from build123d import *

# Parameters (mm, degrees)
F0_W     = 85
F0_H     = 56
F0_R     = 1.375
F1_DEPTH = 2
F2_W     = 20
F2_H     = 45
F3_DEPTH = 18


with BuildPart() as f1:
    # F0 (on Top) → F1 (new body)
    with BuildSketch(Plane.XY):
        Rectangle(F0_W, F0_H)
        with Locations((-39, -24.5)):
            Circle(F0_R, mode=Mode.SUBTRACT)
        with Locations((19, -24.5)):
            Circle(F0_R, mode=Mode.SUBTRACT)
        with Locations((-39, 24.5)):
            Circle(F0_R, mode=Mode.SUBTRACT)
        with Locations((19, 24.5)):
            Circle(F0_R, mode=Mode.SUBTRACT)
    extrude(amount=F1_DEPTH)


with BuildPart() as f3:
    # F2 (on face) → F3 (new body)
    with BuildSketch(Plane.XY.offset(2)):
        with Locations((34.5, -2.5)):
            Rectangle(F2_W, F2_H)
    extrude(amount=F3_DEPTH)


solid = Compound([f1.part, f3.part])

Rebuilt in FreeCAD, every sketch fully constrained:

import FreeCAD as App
import Part
import Sketcher


def add_polygon(sketch, points):
    """Adds a closed chain of lines whose ends are joined by coincident constraints."""
    first, n = sketch.GeometryCount, len(points)
    for a, b in zip(points, points[1:] + points[:1]):
        sketch.addGeometry(Part.LineSegment(App.Vector(*a, 0), App.Vector(*b, 0)), False)
    for i in range(n):
        sketch.addConstraint(Sketcher.Constraint("Coincident", first + i, 2, first + (i + 1) % n, 1))

doc = App.newDocument("Part")
body = doc.addObject("PartDesign::Body", "Body")

# Sketch on XY plane
sketch1 = body.newObject("Sketcher::SketchObject", "Sketch")
sketch1.AttachmentSupport = (doc.getObject("XY_Plane"), [""])
sketch1.MapMode = "FlatFace"
add_polygon(sketch1, [(-42.5, 28), (-42.5, -28), (42.5, -28), (42.5, 28)])  # lines 0-3
sketch1.addGeometry(Part.Circle(App.Vector(-39, -24.5, 0), App.Vector(0, 0, 1), 1.4), False)  # 4
sketch1.addGeometry(Part.Circle(App.Vector(19, -24.5, 0), App.Vector(0, 0, 1), 1.4), False)  # 5
sketch1.addGeometry(Part.Circle(App.Vector(-39, 24.5, 0), App.Vector(0, 0, 1), 1.4), False)  # 6
sketch1.addGeometry(Part.Circle(App.Vector(19, 24.5, 0), App.Vector(0, 0, 1), 1.4), False)  # 7
sketch1.addConstraint([
    Sketcher.Constraint("Vertical", 0),
    Sketcher.Constraint("Horizontal", 1),
    Sketcher.Constraint("Vertical", 2),
    Sketcher.Constraint("Horizontal", 3),
    Sketcher.Constraint("Equal", 4, 5),
    Sketcher.Constraint("Equal", 5, 6),
    Sketcher.Constraint("Equal", 6, 7),
    Sketcher.Constraint("Symmetric", 0, 2, 2, 2, -1, 1),
    Sketcher.Constraint("Symmetric", 4, 3, 6, 3, -1),
    Sketcher.Constraint("Symmetric", 5, 3, 7, 3, -1),
    Sketcher.Constraint("Horizontal", 4, 3, 5, 3),
    Sketcher.Constraint("Diameter", 4, 2.75),
    Sketcher.Constraint("DistanceX", 1, 1, 1, 2, 85.0),
    Sketcher.Constraint("DistanceY", 0, 2, 0, 1, 56.0),
    Sketcher.Constraint("DistanceX", 4, 3, -1, 1, 39.0),
    Sketcher.Constraint("DistanceX", -1, 1, 5, 3, 19.0),
    Sketcher.Constraint("DistanceY", 4, 3, 6, 3, 49.0),
])
pad1 = body.newObject("PartDesign::Pad", "Pad")
pad1.Profile = sketch1
pad1.Length = 2
body2 = doc.addObject("PartDesign::Body", "Body001")

# Sketch on XY plane
sketch2 = body2.newObject("Sketcher::SketchObject", "Sketch001")
sketch2.AttachmentSupport = (doc.getObject("XY_Plane001"), [""])
sketch2.MapMode = "FlatFace"
sketch2.AttachmentOffset = App.Placement(App.Vector(0, 0, 2), App.Rotation())
add_polygon(sketch2, [(24, 20), (24, -25), (44, -25), (44, 20)])  # lines 0-3
sketch2.addConstraint([
    Sketcher.Constraint("Vertical", 0),
    Sketcher.Constraint("Horizontal", 1),
    Sketcher.Constraint("Vertical", 2),
    Sketcher.Constraint("Horizontal", 3),
    Sketcher.Constraint("DistanceX", 1, 1, 1, 2, 20.0),
    Sketcher.Constraint("DistanceY", 0, 2, 0, 1, 45.0),
    Sketcher.Constraint("DistanceY", 0, 2, -1, 1, 25.0),
    Sketcher.Constraint("DistanceX", -1, 1, 0, 2, 24.5),
])
pad2 = body2.newObject("PartDesign::Pad", "Pad001")
pad2.Profile = sketch2
pad2.Length = 18

doc.recompute()
